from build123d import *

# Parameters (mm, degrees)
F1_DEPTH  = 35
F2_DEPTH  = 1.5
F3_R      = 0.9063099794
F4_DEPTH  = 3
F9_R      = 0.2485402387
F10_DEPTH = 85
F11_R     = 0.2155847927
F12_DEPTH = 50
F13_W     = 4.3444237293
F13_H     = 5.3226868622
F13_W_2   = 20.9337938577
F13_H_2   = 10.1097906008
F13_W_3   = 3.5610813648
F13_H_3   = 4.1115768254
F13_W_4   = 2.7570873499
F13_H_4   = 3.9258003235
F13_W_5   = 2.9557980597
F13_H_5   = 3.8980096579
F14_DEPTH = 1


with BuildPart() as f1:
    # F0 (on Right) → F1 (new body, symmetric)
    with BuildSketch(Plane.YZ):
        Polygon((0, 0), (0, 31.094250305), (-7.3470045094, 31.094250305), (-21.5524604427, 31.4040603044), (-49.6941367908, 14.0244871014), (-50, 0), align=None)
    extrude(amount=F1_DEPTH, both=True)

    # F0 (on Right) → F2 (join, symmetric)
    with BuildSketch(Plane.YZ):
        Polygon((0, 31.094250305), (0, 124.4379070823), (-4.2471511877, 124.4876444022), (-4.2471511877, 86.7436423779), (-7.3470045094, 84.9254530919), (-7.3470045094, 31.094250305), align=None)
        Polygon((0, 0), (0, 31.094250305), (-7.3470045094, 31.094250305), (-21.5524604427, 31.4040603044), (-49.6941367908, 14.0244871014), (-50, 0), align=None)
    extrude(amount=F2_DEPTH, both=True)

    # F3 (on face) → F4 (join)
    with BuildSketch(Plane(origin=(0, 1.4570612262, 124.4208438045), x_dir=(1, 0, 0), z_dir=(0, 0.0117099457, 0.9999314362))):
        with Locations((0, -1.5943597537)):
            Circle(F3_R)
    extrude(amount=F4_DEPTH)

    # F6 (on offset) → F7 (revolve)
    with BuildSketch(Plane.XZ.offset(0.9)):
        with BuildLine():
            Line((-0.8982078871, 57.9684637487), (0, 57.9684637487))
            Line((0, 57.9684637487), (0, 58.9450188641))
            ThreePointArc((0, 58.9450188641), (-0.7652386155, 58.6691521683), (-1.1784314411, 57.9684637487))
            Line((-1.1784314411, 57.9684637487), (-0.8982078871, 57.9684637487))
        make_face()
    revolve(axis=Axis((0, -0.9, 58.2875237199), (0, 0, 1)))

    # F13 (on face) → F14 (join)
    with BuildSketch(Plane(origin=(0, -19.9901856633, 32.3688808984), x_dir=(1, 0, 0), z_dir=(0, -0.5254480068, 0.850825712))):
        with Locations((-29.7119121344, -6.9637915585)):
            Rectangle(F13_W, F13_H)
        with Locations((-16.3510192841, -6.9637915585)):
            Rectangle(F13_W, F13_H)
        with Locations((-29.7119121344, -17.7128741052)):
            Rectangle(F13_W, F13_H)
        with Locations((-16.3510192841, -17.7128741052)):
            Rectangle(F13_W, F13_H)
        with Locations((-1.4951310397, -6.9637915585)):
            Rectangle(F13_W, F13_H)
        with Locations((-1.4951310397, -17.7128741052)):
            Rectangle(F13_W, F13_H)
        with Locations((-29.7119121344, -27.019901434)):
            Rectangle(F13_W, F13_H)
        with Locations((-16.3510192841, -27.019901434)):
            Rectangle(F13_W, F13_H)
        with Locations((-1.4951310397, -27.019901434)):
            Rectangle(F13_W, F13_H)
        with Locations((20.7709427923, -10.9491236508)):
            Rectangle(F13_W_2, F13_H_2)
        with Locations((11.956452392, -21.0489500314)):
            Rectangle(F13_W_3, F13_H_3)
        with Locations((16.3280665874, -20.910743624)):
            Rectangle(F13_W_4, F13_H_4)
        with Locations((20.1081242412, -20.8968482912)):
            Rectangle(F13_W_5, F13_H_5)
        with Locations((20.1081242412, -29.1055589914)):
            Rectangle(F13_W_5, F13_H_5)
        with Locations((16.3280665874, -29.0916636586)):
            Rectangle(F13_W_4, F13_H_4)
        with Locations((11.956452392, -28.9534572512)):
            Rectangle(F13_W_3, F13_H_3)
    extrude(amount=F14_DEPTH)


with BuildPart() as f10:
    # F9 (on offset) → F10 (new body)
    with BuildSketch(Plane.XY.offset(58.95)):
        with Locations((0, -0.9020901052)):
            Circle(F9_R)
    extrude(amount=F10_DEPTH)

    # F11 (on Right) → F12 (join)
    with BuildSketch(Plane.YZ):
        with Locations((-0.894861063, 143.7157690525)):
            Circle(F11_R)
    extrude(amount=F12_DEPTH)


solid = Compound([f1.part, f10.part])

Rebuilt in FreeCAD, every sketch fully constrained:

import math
import FreeCAD as App
import Part
import Sketcher
Q = App.Units.Quantity


def add_polygon(sketch, points):
    """Adds a closed chain of lines whose ends are joined by coincident constraints."""
    first, n = sketch.GeometryCount, len(points)
    for a, b in zip(points, points[1:] + points[:1]):
        sketch.addGeometry(Part.LineSegment(App.Vector(*a, 0), App.Vector(*b, 0)), False)
    for i in range(n):
        sketch.addConstraint(Sketcher.Constraint("Coincident", first + i, 2, first + (i + 1) % n, 1))

doc = App.newDocument("Part")
params = doc.addObject("Spreadsheet::Sheet", "Params")
for row, (alias, value) in enumerate([
    ("sketch1_width", "50 mm"),
    ("pad1_length", "70 mm"),
    ("sketch2_width", "50 mm"),
    ("pad2_length", "3 mm"),
    ("pad3_length", "3 mm"),
    ("revolution_angle", "360 deg"),
    ("pad4_length", "1 mm"),
    ("pad5_length", "85 mm"),
    ("pad6_length", "50 mm"),
], start=1):
    params.set(f"A{row}", alias)
    params.set(f"B{row}", "=" + value)
    params.setAlias(f"B{row}", alias)

body = doc.addObject("PartDesign::Body", "Body")

# Sketch on YZ plane
sketch1 = doc.addObject("Sketcher::SketchObject", "Sketch")
body.addObject(sketch1)
sketch1.AttachmentSupport = (doc.YZ_Plane, [""])
sketch1.MapMode = "FlatFace"
add_polygon(sketch1, [(0, 0), (0, 31), (-7, 31), (-22, 31), (-50, 14), (-50, 0)])  # lines 0-5
sketch1.addConstraint([
    Sketcher.Constraint("Vertical", 0),
    Sketcher.Constraint("Horizontal", 1),
    Sketcher.Constraint("Horizontal", 5),
    Sketcher.Constraint("Coincident", 5, 2, -1, 1),
    Sketcher.Constraint("Perpendicular", 2, 4),
    Sketcher.Constraint("DistanceX", 5, 1, 5, 2, Q("50 mm")),
    Sketcher.Constraint("DistanceY", 0, 1, 0, 2, Q("31.09425 mm")),
    Sketcher.Constraint("DistanceX", 1, 2, 1, 1, Q("7.347005 mm")),
    Sketcher.Constraint("DistanceX", 2, 2, -1, 1, Q("21.55246 mm")),
    Sketcher.Constraint("DistanceY", -1, 1, 2, 2, Q("31.40406 mm")),
    Sketcher.Constraint("Distance", 3, Q("33.075724 mm")),
])
sketch1.setExpression("Constraints[11]", "Params.sketch1_width")
pad1 = doc.addObject("PartDesign::Pad", "Pad")
body.addObject(pad1)
pad1.Profile = sketch1
pad1.setExpression("Length", "Params.pad1_length")
pad1.Midplane = True

# Sketch on YZ plane
sketch2 = doc.addObject("Sketcher::SketchObject", "Sketch001")
body.addObject(sketch2)
sketch2.AttachmentSupport = (doc.YZ_Plane, [""])
sketch2.MapMode = "FlatFace"
add_polygon(sketch2, [(0, 124.4), (-4.2, 124.5), (-4.2, 86.7), (-7.3, 84.9), (-7.3, 31.1), (-21.6, 31.4), (-49.7, 14), (-50, 0), (0, 0)])  # lines 0-8
sketch2.addConstraint([
    Sketcher.Constraint("Vertical", 1),
    Sketcher.Constraint("Vertical", 3),
    Sketcher.Constraint("Horizontal", 7),
    Sketcher.Constraint("Vertical", 8),
    Sketcher.Constraint("Coincident", 7, 2, -1, 1),
    Sketcher.Constraint("Perpendicular", 4, 6),
    Sketcher.Constraint("DistanceX", 7, 1, 7, 2, Q("50 mm")),
    Sketcher.Constraint("Distance", 2, Q("3.593731 mm")),
    Sketcher.Constraint("DistanceY", 1, 2, 1, 1, Q("37.744002 mm")),
    Sketcher.Constraint("DistanceY", 3, 2, 3, 1, Q("53.831203 mm")),
    Sketcher.Constraint("DistanceY", 8, 1, 8, 2, Q("124.437907 mm")),
    Sketcher.Constraint("DistanceX", 0, 2, -1, 1, Q("4.247151 mm")),
    Sketcher.Constraint("DistanceY", -1, 1, 3, 2, Q("31.09425 mm")),
    Sketcher.Constraint("DistanceX", 4, 2, -1, 1, Q("21.55246 mm")),
    Sketcher.Constraint("DistanceY", -1, 1, 4, 2, Q("31.40406 mm")),
    Sketcher.Constraint("DistanceY", 2, 2, 1, 2, Q("1.818189 mm")),
    Sketcher.Constraint("Distance", 5, Q("33.075724 mm")),
])
sketch2.setExpression("Constraints[15]", "Params.sketch2_width")
pad2 = doc.addObject("PartDesign::Pad", "Pad001")
body.addObject(pad2)
pad2.Profile = sketch2
pad2.setExpression("Length", "Params.pad2_length")
pad2.Midplane = True

# Sketch on an angled plane
sketch3 = doc.addObject("Sketcher::SketchObject", "Sketch002")
body.addObject(sketch3)
sketch3.Placement = App.Placement(App.Vector(0, 1.457061, 124.420844), App.Rotation(App.Vector(1, 0, 0), App.Vector(0, 0.999931436, -0.011709946), App.Vector(0, 0.011709946, 0.999931436), "ZXY"))
sketch3.addGeometry(Part.Circle(App.Vector(0, -1.6, 0), App.Vector(0, 0, 1), 0.9), False)
sketch3.addConstraint([
    Sketcher.Constraint("PointOnObject", 0, 3, -2),
    Sketcher.Constraint("Diameter", 0, Q("1.81262 mm")),
    Sketcher.Constraint("DistanceY", 0, 3, -1, 1, Q("1.59436 mm")),
])
pad3 = doc.addObject("PartDesign::Pad", "Pad002")
body.addObject(pad3)
pad3.Profile = sketch3
pad3.setExpression("Length", "Params.pad3_length")

# Sketch on XZ plane
sketch4 = doc.addObject("Sketcher::SketchObject", "Sketch003")
body.addObject(sketch4)
sketch4.AttachmentSupport = (doc.XZ_Plane, [""])
sketch4.MapMode = "FlatFace"
sketch4.AttachmentOffset = App.Placement(App.Vector(0, 0, 0.9), App.Rotation())
sketch4.addGeometry([
    Part.LineSegment(App.Vector(0, 58, 0), App.Vector(0, 58.9, 0)),
    Part.ArcOfCircle(Part.Circle(App.Vector(0, 57.7, 0), App.Vector(0, 0, 1), 1.2), math.radians(90), math.radians(169)),
    Part.LineSegment(App.Vector(-1.2, 58, 0), App.Vector(0, 58, 0)),
], False)
sketch4.addConstraint([
    Sketcher.Constraint("Coincident", 0, 2, 1, 1),
    Sketcher.Constraint("Coincident", 1, 2, 2, 1),
    Sketcher.Constraint("Coincident", 2, 2, 0, 1),
    Sketcher.Constraint("Vertical", 0),
    Sketcher.Constraint("Horizontal", 2),
    Sketcher.Constraint("PointOnObject", 1, 3, -2),
    Sketcher.Constraint("PointOnObject", 0, 2, -2),
    Sketcher.Constraint("Radius", 1, Q("1.199298 mm")),
    Sketcher.Constraint("DistanceX", 2, 1, 2, 2, Q("1.178431 mm")),
    Sketcher.Constraint("DistanceY", -1, 1, 1, 3, Q("57.745721 mm")),
])
revolution = doc.addObject("PartDesign::Revolution", "Revolution")
body.addObject(revolution)
revolution.Profile = sketch4
revolution.ReferenceAxis = (sketch4, ["V_Axis"])
revolution.setExpression("Angle", "Params.revolution_angle")

# Sketch on an angled plane
sketch5 = doc.addObject("Sketcher::SketchObject", "Sketch004")
body.addObject(sketch5)
sketch5.Placement = App.Placement(App.Vector(0, -19.990186, 32.368881), App.Rotation(App.Vector(1, 0, 0), App.Vector(0, 0.850825712, 0.525448007), App.Vector(0, -0.525448007, 0.850825712), "ZXY"))
add_polygon(sketch5, [(-31.9, -4.3), (-31.9, -9.6), (-27.5, -9.6), (-27.5, -4.3)])  # lines 0-3
add_polygon(sketch5, [(-18.5, -4.3), (-18.5, -9.6), (-14.2, -9.6), (-14.2, -4.3)])  # lines 4-7
add_polygon(sketch5, [(-31.9, -15.1), (-31.9, -20.4), (-27.5, -20.4), (-27.5, -15.1)])  # lines 8-11
add_polygon(sketch5, [(-18.5, -15.1), (-18.5, -20.4), (-14.2, -20.4), (-14.2, -15.1)])  # lines 12-15
add_polygon(sketch5, [(-3.7, -4.3), (-3.7, -9.6), (0.7, -9.6), (0.7, -4.3)])  # lines 16-19
add_polygon(sketch5, [(-3.7, -15.1), (-3.7, -20.4), (0.7, -20.4), (0.7, -15.1)])  # lines 20-23
add_polygon(sketch5, [(-31.9, -24.4), (-31.9, -29.7), (-27.5, -29.7), (-27.5, -24.4)])  # lines 24-27
add_polygon(sketch5, [(-18.5, -24.4), (-18.5, -29.7), (-14.2, -29.7), (-14.2, -24.4)])  # lines 28-31
add_polygon(sketch5, [(-3.7, -24.4), (-3.7, -29.7), (0.7, -29.7), (0.7, -24.4)])  # lines 32-35
add_polygon(sketch5, [(10.3, -5.9), (10.3, -16), (31.2, -16), (31.2, -5.9)])  # lines 36-39
add_polygon(sketch5, [(10.2, -19), (10.2, -23.1), (13.7, -23.1), (13.7, -19)])  # lines 40-43
add_polygon(sketch5, [(14.9, -18.9), (14.9, -22.9), (17.7, -22.9), (17.7, -18.9)])  # lines 44-47
add_polygon(sketch5, [(18.6, -18.9), (18.6, -22.8), (21.6, -22.8), (21.6, -18.9)])  # lines 48-51
add_polygon(sketch5, [(18.6, -27.2), (18.6, -31.1), (21.6, -31.1), (21.6, -27.2)])  # lines 52-55
add_polygon(sketch5, [(14.9, -27.1), (14.9, -31.1), (17.7, -31.1), (17.7, -27.1)])  # lines 56-59
add_polygon(sketch5, [(10.2, -26.9), (10.2, -31), (13.7, -31), (13.7, -26.9)])  # lines 60-63
sketch5.addConstraint([
    Sketcher.Constraint("Vertical", 0),
    Sketcher.Constraint("Horizontal", 1),
    Sketcher.Constraint("Vertical", 2),
    Sketcher.Constraint("Horizontal", 3),
    Sketcher.Constraint("Vertical", 4),
    Sketcher.Constraint("Horizontal", 5),
    Sketcher.Constraint("Vertical", 6),
    Sketcher.Constraint("Horizontal", 7),
    Sketcher.Constraint("Vertical", 8),
    Sketcher.Constraint("Horizontal", 9),
    Sketcher.Constraint("Vertical", 10),
    Sketcher.Constraint("Horizontal", 11),
    Sketcher.Constraint("Vertical", 12),
    Sketcher.Constraint("Horizontal", 13),
    Sketcher.Constraint("Vertical", 14),
    Sketcher.Constraint("Horizontal", 15),
    Sketcher.Constraint("Vertical", 16),
    Sketcher.Constraint("Horizontal", 17),
    Sketcher.Constraint("Vertical", 18),
    Sketcher.Constraint("Horizontal", 19),
    Sketcher.Constraint("Vertical", 20),
    Sketcher.Constraint("Horizontal", 21),
    Sketcher.Constraint("Vertical", 22),
    Sketcher.Constraint("Horizontal", 23),
    Sketcher.Constraint("Vertical", 24),
    Sketcher.Constraint("Horizontal", 25),
    Sketcher.Constraint("Vertical", 26),
    Sketcher.Constraint("Horizontal", 27),
    Sketcher.Constraint("Vertical", 28),
    Sketcher.Constraint("Horizontal", 29),
    Sketcher.Constraint("Vertical", 30),
    Sketcher.Constraint("Horizontal", 31),
    Sketcher.Constraint("Vertical", 32),
    Sketcher.Constraint("Horizontal", 33),
    Sketcher.Constraint("Vertical", 34),
    Sketcher.Constraint("Horizontal", 35),
    Sketcher.Constraint("Vertical", 36),
    Sketcher.Constraint("Horizontal", 37),
    Sketcher.Constraint("Vertical", 38),
    Sketcher.Constraint("Horizontal", 39),
    Sketcher.Constraint("Vertical", 40),
    Sketcher.Constraint("Horizontal", 41),
    Sketcher.Constraint("Vertical", 42),
    Sketcher.Constraint("Horizontal", 43),
    Sketcher.Constraint("Vertical", 44),
    Sketcher.Constraint("Horizontal", 45),
    Sketcher.Constraint("Vertical", 46),
    Sketcher.Constraint("Horizontal", 47),
    Sketcher.Constraint("Vertical", 48),
    Sketcher.Constraint("Horizontal", 49),
    Sketcher.Constraint("Vertical", 50),
    Sketcher.Constraint("Horizontal", 51),
    Sketcher.Constraint("Vertical", 52),
    Sketcher.Constraint("Horizontal", 53),
    Sketcher.Constraint("Vertical", 54),
    Sketcher.Constraint("Horizontal", 55),
    Sketcher.Constraint("Vertical", 56),
    Sketcher.Constraint("Horizontal", 57),
    Sketcher.Constraint("Vertical", 58),
    Sketcher.Constraint("Horizontal", 59),
    Sketcher.Constraint("Vertical", 60),
    Sketcher.Constraint("Horizontal", 61),
    Sketcher.Constraint("Vertical", 62),
    Sketcher.Constraint("Horizontal", 63),
    Sketcher.Constraint("Horizontal", 1, 2, 4, 2),
    Sketcher.Constraint("Horizontal", 3, 2, 6, 2),
    Sketcher.Constraint("Horizontal", 9, 2, 12, 2),
    Sketcher.Constraint("Horizontal", 11, 2, 14, 2),
    Sketcher.Constraint("Horizontal", 5, 2, 16, 2),
    Sketcher.Constraint("Horizontal", 7, 2, 18, 2),
    Sketcher.Constraint("Horizontal", 13, 2, 20, 2),
    Sketcher.Constraint("Horizontal", 15, 2, 22, 2),
    Sketcher.Constraint("Horizontal", 25, 2, 28, 2),
    Sketcher.Constraint("Horizontal", 27, 2, 30, 2),
    Sketcher.Constraint("Horizontal", 29, 2, 32, 2),
    Sketcher.Constraint("Horizontal", 31, 2, 34, 2),
    Sketcher.Constraint("Horizontal", 47, 2, 50, 2),
    Sketcher.Constraint("Horizontal", 53, 2, 56, 2),
    Sketcher.Constraint("Vertical", 3, 2, 8, 2),
    Sketcher.Constraint("Vertical", 2, 2, 9, 2),
    Sketcher.Constraint("Vertical", 7, 2, 12, 2),
    Sketcher.Constraint("Vertical", 6, 2, 13, 2),
    Sketcher.Constraint("Vertical", 19, 2, 20, 2),
    Sketcher.Constraint("Vertical", 18, 2, 21, 2),
    Sketcher.Constraint("Vertical", 11, 2, 24, 2),
    Sketcher.Constraint("Vertical", 10, 2, 25, 2),
    Sketcher.Constraint("Vertical", 15, 2, 28, 2),
    Sketcher.Constraint("Vertical", 14, 2, 29, 2),
    Sketcher.Constraint("Vertical", 23, 2, 32, 2),
    Sketcher.Constraint("Vertical", 22, 2, 33, 2),
    Sketcher.Constraint("Vertical", 51, 2, 52, 2),
    Sketcher.Constraint("Vertical", 50, 2, 53, 2),
    Sketcher.Constraint("Vertical", 47, 2, 56, 2),
    Sketcher.Constraint("Vertical", 46, 2, 57, 2),
    Sketcher.Constraint("Vertical", 43, 2, 60, 2),
    Sketcher.Constraint("Vertical", 42, 2, 61, 2),
    Sketcher.Constraint("Equal", 3, 5),
    Sketcher.Constraint("Equal", 15, 17),
    Sketcher.Constraint("Equal", 6, 8),
    Sketcher.Constraint("Equal", 22, 24),
    Sketcher.Constraint("Equal", 50, 52),
    Sketcher.Constraint("Equal", 46, 56),
    Sketcher.Constraint("Equal", 42, 60),
    Sketcher.Constraint("DistanceX", 49, 1, 49, 2, Q("2.955798 mm")),
    Sketcher.Constraint("DistanceY", 44, 2, 44, 1, Q("3.9258 mm")),
    Sketcher.Constraint("DistanceX", 41, 1, 41, 2, Q("3.561081 mm")),
    Sketcher.Constraint("DistanceY", 36, 2, 36, 1, Q("10.109791 mm")),
    Sketcher.Constraint("DistanceY", 48, 2, 48, 1, Q("3.89801 mm")),
    Sketcher.Constraint("DistanceX", 1, 2, -1, 1, Q("27.5397 mm")),
    Sketcher.Constraint("DistanceX", 1, 1, 1, 2, Q("4.344424 mm")),
    Sketcher.Constraint("DistanceX", 37, 1, 37, 2, Q("20.933794 mm")),
    Sketcher.Constraint("DistanceX", 45, 1, 45, 2, Q("2.757087 mm")),
    Sketcher.Constraint("DistanceY", 0, 2, 0, 1, Q("5.322687 mm")),
    Sketcher.Constraint("DistanceY", 40, 2, 40, 1, Q("4.111577 mm")),
    Sketcher.Constraint("DistanceY", 2, 2, -1, 1, Q("4.302448 mm")),
    Sketcher.Constraint("DistanceX", 4, 2, -1, 1, Q("18.523231 mm")),
    Sketcher.Constraint("DistanceY", 10, 2, -1, 1, Q("15.051531 mm")),
    Sketcher.Constraint("DistanceX", -1, 1, 17, 2, Q("0.677081 mm")),
    Sketcher.Constraint("DistanceY", 26, 2, -1, 1, Q("24.358558 mm")),
    Sketcher.Constraint("DistanceY", 36, 2, -1, 1, Q("16.004019 mm")),
    Sketcher.Constraint("DistanceX", -1, 1, 37, 2, Q("31.23784 mm")),
    Sketcher.Constraint("DistanceX", -1, 1, 40, 2, Q("10.175912 mm")),
    Sketcher.Constraint("DistanceY", 40, 2, -1, 1, Q("23.104738 mm")),
    Sketcher.Constraint("DistanceX", -1, 1, 45, 2, Q("17.70661 mm")),
    Sketcher.Constraint("DistanceY", 62, 2, -1, 1, Q("26.897669 mm")),
    Sketcher.Constraint("DistanceY", 44, 2, -1, 1, Q("22.873644 mm")),
    Sketcher.Constraint("DistanceX", -1, 1, 48, 2, Q("18.630225 mm")),
    Sketcher.Constraint("DistanceY", 52, 2, -1, 1, Q("31.054564 mm")),
])
pad4 = doc.addObject("PartDesign::Pad", "Pad003")
body.addObject(pad4)
pad4.Profile = sketch5
pad4.setExpression("Length", "Params.pad4_length")
body2 = doc.addObject("PartDesign::Body", "Body001")

# Sketch on XY plane
sketch6 = doc.addObject("Sketcher::SketchObject", "Sketch005")
body2.addObject(sketch6)
sketch6.AttachmentSupport = (doc.getObject("XY_Plane001"), [""])
sketch6.MapMode = "FlatFace"
sketch6.AttachmentOffset = App.Placement(App.Vector(0, 0, 58.95), App.Rotation())
sketch6.addGeometry(Part.Circle(App.Vector(0, -0.9, 0), App.Vector(0, 0, 1), 0.25), False)
sketch6.addConstraint([
    Sketcher.Constraint("PointOnObject", 0, 3, -2),
    Sketcher.Constraint("Diameter", 0, Q("0.49708 mm")),
    Sketcher.Constraint("DistanceY", 0, 3, -1, 1, Q("0.90209 mm")),
])
pad5 = doc.addObject("PartDesign::Pad", "Pad004")
body2.addObject(pad5)
pad5.Profile = sketch6
pad5.setExpression("Length", "Params.pad5_length")

# Sketch on YZ plane
sketch7 = doc.addObject("Sketcher::SketchObject", "Sketch006")
body2.addObject(sketch7)
sketch7.AttachmentSupport = (doc.getObject("YZ_Plane001"), [""])
sketch7.MapMode = "FlatFace"
sketch7.addGeometry(Part.Circle(App.Vector(-0.89, 143.72, 0), App.Vector(0, 0, 1), 0.22), False)
sketch7.addConstraint([
    Sketcher.Constraint("Diameter", 0, Q("0.43117 mm")),
    Sketcher.Constraint("DistanceX", 0, 3, -1, 1, Q("0.894861 mm")),
    Sketcher.Constraint("DistanceY", -1, 1, 0, 3, Q("143.715769 mm")),
])
pad6 = doc.addObject("PartDesign::Pad", "Pad005")
body2.addObject(pad6)
pad6.Profile = sketch7
pad6.setExpression("Length", "Params.pad6_length")

doc.recompute()
